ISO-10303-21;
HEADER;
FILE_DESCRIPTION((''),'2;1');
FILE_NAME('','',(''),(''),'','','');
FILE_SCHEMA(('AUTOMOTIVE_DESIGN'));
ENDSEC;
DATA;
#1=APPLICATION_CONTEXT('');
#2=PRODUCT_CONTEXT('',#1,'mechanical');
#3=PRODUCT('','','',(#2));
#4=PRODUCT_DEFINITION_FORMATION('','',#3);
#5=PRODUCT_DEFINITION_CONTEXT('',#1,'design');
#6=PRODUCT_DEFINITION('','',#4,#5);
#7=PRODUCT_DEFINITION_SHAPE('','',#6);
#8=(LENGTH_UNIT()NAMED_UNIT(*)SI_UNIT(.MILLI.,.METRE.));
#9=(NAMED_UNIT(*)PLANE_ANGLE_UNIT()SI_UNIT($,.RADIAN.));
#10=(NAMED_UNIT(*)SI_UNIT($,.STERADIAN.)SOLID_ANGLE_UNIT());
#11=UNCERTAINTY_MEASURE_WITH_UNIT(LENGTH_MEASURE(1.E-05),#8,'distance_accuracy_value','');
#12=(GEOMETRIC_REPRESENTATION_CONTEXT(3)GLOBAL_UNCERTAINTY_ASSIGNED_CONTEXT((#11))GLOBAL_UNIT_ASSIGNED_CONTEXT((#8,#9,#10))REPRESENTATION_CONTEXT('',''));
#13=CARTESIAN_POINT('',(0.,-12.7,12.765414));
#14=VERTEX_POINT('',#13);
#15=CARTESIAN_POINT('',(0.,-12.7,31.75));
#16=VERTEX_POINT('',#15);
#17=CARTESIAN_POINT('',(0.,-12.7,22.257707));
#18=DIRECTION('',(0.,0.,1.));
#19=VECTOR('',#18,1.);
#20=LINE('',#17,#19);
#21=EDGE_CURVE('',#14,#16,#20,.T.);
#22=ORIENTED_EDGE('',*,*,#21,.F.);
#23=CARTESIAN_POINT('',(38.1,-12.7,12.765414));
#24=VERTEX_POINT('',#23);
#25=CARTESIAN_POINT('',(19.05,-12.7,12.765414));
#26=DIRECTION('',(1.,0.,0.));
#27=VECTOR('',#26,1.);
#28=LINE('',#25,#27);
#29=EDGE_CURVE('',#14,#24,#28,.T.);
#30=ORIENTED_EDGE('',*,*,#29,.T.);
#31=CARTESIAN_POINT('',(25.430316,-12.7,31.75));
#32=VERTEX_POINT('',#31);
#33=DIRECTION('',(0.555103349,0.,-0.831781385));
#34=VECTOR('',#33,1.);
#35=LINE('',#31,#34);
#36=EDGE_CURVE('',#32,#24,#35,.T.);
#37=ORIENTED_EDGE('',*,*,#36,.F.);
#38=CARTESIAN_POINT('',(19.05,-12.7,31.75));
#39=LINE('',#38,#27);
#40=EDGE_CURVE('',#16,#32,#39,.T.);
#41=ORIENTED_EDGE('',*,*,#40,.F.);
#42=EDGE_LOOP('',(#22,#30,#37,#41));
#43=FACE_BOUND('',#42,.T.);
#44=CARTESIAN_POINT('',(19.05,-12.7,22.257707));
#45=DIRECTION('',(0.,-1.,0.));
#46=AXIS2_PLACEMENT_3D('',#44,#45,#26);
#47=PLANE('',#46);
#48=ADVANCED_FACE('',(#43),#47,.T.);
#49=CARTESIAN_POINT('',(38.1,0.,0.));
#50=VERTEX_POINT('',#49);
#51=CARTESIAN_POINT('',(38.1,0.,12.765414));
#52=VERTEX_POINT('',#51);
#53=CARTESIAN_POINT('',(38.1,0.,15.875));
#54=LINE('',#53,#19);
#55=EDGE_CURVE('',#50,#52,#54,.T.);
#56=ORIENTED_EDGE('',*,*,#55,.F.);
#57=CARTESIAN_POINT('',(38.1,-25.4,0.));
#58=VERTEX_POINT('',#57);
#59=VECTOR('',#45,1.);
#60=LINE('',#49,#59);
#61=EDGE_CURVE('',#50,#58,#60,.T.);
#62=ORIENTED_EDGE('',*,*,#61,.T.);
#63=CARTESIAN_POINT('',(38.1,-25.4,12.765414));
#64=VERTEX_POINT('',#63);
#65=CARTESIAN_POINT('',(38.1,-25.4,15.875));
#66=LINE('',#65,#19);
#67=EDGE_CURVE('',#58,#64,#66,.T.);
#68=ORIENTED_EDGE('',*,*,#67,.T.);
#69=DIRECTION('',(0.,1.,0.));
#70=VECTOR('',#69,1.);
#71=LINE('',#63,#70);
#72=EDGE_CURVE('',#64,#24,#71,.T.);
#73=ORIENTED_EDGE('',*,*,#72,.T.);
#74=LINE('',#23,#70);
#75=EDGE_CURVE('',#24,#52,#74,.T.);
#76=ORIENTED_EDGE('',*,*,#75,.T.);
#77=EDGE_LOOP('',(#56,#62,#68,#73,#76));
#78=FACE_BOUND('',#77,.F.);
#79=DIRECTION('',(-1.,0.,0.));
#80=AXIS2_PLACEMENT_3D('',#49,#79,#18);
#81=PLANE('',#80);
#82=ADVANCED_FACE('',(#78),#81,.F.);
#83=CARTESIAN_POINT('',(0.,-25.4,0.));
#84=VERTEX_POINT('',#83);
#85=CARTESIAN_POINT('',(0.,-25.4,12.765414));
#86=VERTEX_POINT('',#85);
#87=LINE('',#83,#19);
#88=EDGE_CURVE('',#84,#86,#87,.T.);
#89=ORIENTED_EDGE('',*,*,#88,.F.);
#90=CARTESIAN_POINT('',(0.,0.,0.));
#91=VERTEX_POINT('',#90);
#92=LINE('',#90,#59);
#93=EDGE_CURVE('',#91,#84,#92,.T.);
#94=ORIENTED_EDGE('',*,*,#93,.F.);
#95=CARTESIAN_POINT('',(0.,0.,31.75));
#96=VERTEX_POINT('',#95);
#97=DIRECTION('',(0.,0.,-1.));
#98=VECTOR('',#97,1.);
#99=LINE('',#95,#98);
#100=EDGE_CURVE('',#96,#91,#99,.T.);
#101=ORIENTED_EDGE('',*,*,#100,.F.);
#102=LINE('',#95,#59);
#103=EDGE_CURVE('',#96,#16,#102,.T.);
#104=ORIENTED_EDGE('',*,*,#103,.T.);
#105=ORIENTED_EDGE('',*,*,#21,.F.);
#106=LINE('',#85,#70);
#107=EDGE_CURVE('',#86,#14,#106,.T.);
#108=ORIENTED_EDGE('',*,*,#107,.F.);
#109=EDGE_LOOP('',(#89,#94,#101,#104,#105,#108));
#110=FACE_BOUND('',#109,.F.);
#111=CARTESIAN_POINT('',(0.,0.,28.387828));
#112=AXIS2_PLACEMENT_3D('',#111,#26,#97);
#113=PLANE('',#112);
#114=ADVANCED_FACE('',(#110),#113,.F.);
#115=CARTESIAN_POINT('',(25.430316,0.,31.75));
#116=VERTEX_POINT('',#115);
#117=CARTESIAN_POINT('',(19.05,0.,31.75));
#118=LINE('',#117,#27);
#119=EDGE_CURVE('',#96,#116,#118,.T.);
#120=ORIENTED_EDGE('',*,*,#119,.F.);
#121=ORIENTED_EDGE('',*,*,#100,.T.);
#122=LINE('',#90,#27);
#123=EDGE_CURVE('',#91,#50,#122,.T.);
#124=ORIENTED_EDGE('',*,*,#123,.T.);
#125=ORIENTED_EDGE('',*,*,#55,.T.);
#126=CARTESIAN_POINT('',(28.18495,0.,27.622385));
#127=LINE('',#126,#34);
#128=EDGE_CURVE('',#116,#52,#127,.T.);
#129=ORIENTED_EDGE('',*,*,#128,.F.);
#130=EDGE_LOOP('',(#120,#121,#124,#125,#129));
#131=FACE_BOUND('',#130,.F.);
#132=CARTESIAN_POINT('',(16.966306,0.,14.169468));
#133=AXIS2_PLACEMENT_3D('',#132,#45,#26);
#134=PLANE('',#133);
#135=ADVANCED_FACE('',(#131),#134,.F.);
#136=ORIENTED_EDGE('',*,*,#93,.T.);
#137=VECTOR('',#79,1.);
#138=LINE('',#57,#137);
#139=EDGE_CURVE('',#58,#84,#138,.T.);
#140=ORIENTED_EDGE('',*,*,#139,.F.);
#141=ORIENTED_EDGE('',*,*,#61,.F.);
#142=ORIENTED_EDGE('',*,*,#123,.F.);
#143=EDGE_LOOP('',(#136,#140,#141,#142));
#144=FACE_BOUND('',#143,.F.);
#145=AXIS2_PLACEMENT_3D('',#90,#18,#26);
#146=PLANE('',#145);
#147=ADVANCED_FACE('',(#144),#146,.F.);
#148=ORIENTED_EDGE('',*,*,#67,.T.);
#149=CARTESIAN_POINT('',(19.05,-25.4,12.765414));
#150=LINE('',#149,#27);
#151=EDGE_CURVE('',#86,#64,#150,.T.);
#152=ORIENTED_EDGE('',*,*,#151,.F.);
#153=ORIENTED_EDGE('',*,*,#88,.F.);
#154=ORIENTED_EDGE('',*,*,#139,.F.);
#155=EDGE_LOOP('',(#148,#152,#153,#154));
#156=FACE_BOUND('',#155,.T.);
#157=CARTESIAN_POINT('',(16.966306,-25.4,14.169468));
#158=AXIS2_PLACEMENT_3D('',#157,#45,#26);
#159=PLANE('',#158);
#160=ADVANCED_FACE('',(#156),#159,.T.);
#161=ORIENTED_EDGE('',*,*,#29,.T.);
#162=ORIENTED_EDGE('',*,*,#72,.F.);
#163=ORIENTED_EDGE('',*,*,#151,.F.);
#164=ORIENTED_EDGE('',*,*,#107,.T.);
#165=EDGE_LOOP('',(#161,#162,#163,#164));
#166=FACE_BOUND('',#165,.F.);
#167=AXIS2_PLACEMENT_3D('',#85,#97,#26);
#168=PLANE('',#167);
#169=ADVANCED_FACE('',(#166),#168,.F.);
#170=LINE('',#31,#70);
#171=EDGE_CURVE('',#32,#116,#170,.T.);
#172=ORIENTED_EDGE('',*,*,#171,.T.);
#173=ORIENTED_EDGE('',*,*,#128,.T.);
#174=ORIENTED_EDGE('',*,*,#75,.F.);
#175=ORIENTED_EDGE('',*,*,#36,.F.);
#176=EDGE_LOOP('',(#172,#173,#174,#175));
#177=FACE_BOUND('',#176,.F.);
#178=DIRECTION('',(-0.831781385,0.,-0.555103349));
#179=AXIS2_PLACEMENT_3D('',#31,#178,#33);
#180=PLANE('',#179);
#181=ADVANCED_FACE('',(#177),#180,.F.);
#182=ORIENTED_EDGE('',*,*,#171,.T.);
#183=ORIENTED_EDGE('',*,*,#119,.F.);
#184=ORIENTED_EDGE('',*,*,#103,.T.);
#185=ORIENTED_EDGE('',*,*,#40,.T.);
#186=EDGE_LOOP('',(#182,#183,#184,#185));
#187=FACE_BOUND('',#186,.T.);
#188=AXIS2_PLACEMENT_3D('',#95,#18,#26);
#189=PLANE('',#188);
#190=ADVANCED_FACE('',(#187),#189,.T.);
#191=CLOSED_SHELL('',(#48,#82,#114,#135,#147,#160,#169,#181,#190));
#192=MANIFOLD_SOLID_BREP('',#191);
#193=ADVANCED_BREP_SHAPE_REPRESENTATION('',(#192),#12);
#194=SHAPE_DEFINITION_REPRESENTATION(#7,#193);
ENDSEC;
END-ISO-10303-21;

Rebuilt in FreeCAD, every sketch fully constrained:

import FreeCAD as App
import Part
import Sketcher
from FreeCAD import Vector
Q = App.Units.Quantity

doc = App.newDocument("Part")
params = doc.addObject("Spreadsheet::Sheet", "Params")
for row, (alias, value) in enumerate([
    ("pad1_length", "1 in"),
    ("sketch2_width", "1.5 in"),
    ("sketch2_height", "1.25 in"),
    ("pad2_length", "1 in"),
    ("sketch3_width", "1.5 in"),
    ("pocket1_length", "0.5 in"),
], start=1):
    params.set(f"A{row}", alias)
    params.set(f"B{row}", "=" + value)
    params.setAlias(f"B{row}", alias)

body = doc.addObject("PartDesign::Body", "Body")

# Sketch on XZ plane
sketch1 = doc.addObject("Sketcher::SketchObject", "Sketch")
body.addObject(sketch1)
sketch1.AttachmentSupport = (doc.XZ_Plane, [""])
sketch1.MapMode = "FlatFace"
sketch1.addGeometry([
    Part.LineSegment(Vector(34, 28, 0), Vector(0, 28, 0)),
    Part.LineSegment(Vector(0, 28, 0), Vector(0, 0, 0)),
    Part.LineSegment(Vector(0, 0, 0), Vector(34, 0, 0)),
    Part.LineSegment(Vector(34, 0, 0), Vector(34, 28, 0)),
], False)
sketch1.addConstraint([
    Sketcher.Constraint("Coincident", 0, 2, 1, 1),
    Sketcher.Constraint("Coincident", 1, 2, 2, 1),
    Sketcher.Constraint("Coincident", 2, 2, 3, 1),
    Sketcher.Constraint("Coincident", 3, 2, 0, 1),
    Sketcher.Constraint("Horizontal", 0),
    Sketcher.Constraint("Vertical", 1),
    Sketcher.Constraint("Horizontal", 2),
    Sketcher.Constraint("Coincident", 1, 2, -1, 1),
    Sketcher.Constraint("DistanceX", 0, 2, 0, 1, Q("33.824872 mm")),
    Sketcher.Constraint("Distance", 3, Q("28.388639 mm")),
    Sketcher.Constraint("DistanceX", 2, 1, 2, 2, Q("34.039542 mm")),
])
pad1 = doc.addObject("PartDesign::Pad", "Pad")
body.addObject(pad1)
pad1.Profile = sketch1
pad1.setExpression("Length", "Params.pad1_length")

# Sketch on XZ plane
sketch2 = doc.addObject("Sketcher::SketchObject", "Sketch001")
body.addObject(sketch2)
sketch2.AttachmentSupport = (doc.XZ_Plane, [""])
sketch2.MapMode = "FlatFace"
sketch2.addGeometry([
    Part.LineSegment(Vector(0, 32, 0), Vector(0, 0, 0)),
    Part.LineSegment(Vector(0, 0, 0), Vector(38, 0, 0)),
    Part.LineSegment(Vector(38, 0, 0), Vector(38, 32, 0)),
    Part.LineSegment(Vector(38, 32, 0), Vector(0, 32, 0)),
], False)
sketch2.addConstraint([
    Sketcher.Constraint("Coincident", 0, 2, 1, 1),
    Sketcher.Constraint("Coincident", 1, 2, 2, 1),
    Sketcher.Constraint("Coincident", 2, 2, 3, 1),
    Sketcher.Constraint("Coincident", 3, 2, 0, 1),
    Sketcher.Constraint("Vertical", 0),
    Sketcher.Constraint("Horizontal", 1),
    Sketcher.Constraint("Vertical", 2),
    Sketcher.Constraint("Horizontal", 3),
    Sketcher.Constraint("Coincident", 0, 2, -1, 1),
    Sketcher.Constraint("DistanceX", 1, 1, 1, 2, Q("1.5 in")),
    Sketcher.Constraint("DistanceY", 0, 2, 0, 1, Q("1.25 in")),
])
sketch2.setExpression("Constraints[9]", "Params.sketch2_width")
sketch2.setExpression("Constraints[10]", "Params.sketch2_height")
pad2 = doc.addObject("PartDesign::Pad", "Pad001")
body.addObject(pad2)
pad2.Profile = sketch2
pad2.setExpression("Length", "Params.pad2_length")

# Sketch on XZ plane
sketch3 = doc.addObject("Sketcher::SketchObject", "Sketch002")
body.addObject(sketch3)
sketch3.AttachmentSupport = (doc.XZ_Plane, [""])
sketch3.MapMode = "FlatFace"
sketch3.AttachmentOffset = App.Placement(Vector(0, 0, 1 * 25.4), App.Rotation())
sketch3.addGeometry([
    Part.LineSegment(Vector(0, 32, 0), Vector(0, 13, 0)),
    Part.LineSegment(Vector(0, 13, 0), Vector(38, 13, 0)),
    Part.LineSegment(Vector(38, 13, 0), Vector(38, 32, 0)),
    Part.LineSegment(Vector(38, 32, 0), Vector(0, 32, 0)),
], False)
sketch3.addConstraint([
    Sketcher.Constraint("Coincident", 0, 2, 1, 1),
    Sketcher.Constraint("Coincident", 1, 2, 2, 1),
    Sketcher.Constraint("Coincident", 2, 2, 3, 1),
    Sketcher.Constraint("Coincident", 3, 2, 0, 1),
    Sketcher.Constraint("Vertical", 0),
    Sketcher.Constraint("Horizontal", 1),
    Sketcher.Constraint("Vertical", 2),
    Sketcher.Constraint("Horizontal", 3),
    Sketcher.Constraint("PointOnObject", 0, 2, -2),
    Sketcher.Constraint("DistanceX", 1, 1, 1, 2, Q("1.5 in")),
    Sketcher.Constraint("DistanceY", -1, 1, 2, 2, Q("1.25 in")),
    Sketcher.Constraint("DistanceY", 0, 2, 0, 1, Q("18.984586 mm")),
])
sketch3.setExpression("Constraints[9]", "Params.sketch3_width")
pocket1 = doc.addObject("PartDesign::Pocket", "Pocket")
body.addObject(pocket1)
pocket1.Profile = sketch3
pocket1.setExpression("Length", "Params.pocket1_length")

# Sketch on XZ plane
sketch4 = doc.addObject("Sketcher::SketchObject", "Sketch003")
body.addObject(sketch4)
sketch4.AttachmentSupport = (doc.XZ_Plane, [""])
sketch4.MapMode = "FlatFace"
sketch4.AttachmentOffset = App.Placement(Vector(0, 0, 0.5 * 25.4), App.Rotation())
sketch4.addGeometry([
    Part.LineSegment(Vector(38, 32, 0), Vector(25, 32, 0)),
    Part.LineSegment(Vector(25, 32, 0), Vector(38, 13, 0)),
    Part.LineSegment(Vector(38, 13, 0), Vector(38, 32, 0)),
], False)
sketch4.addConstraint([
    Sketcher.Constraint("Coincident", 0, 2, 1, 1),
    Sketcher.Constraint("Coincident", 1, 2, 2, 1),
    Sketcher.Constraint("Coincident", 2, 2, 0, 1),
    Sketcher.Constraint("Horizontal", 0),
    Sketcher.Constraint("Vertical", 2),
    Sketcher.Constraint("DistanceX", -1, 1, 1, 2, Q("1.5 in")),
    Sketcher.Constraint("DistanceY", -1, 1, 0, 2, Q("1.25 in")),
    Sketcher.Constraint("Distance", 1, Q("22.824009 mm")),
    Sketcher.Constraint("DistanceX", 0, 2, 0, 1, Q("12.669684 mm")),
])
pocket2 = doc.addObject("PartDesign::Pocket", "Pocket001")
body.addObject(pocket2)
pocket2.Profile = sketch4
pocket2.Type = "ThroughAll"

doc.recompute()
